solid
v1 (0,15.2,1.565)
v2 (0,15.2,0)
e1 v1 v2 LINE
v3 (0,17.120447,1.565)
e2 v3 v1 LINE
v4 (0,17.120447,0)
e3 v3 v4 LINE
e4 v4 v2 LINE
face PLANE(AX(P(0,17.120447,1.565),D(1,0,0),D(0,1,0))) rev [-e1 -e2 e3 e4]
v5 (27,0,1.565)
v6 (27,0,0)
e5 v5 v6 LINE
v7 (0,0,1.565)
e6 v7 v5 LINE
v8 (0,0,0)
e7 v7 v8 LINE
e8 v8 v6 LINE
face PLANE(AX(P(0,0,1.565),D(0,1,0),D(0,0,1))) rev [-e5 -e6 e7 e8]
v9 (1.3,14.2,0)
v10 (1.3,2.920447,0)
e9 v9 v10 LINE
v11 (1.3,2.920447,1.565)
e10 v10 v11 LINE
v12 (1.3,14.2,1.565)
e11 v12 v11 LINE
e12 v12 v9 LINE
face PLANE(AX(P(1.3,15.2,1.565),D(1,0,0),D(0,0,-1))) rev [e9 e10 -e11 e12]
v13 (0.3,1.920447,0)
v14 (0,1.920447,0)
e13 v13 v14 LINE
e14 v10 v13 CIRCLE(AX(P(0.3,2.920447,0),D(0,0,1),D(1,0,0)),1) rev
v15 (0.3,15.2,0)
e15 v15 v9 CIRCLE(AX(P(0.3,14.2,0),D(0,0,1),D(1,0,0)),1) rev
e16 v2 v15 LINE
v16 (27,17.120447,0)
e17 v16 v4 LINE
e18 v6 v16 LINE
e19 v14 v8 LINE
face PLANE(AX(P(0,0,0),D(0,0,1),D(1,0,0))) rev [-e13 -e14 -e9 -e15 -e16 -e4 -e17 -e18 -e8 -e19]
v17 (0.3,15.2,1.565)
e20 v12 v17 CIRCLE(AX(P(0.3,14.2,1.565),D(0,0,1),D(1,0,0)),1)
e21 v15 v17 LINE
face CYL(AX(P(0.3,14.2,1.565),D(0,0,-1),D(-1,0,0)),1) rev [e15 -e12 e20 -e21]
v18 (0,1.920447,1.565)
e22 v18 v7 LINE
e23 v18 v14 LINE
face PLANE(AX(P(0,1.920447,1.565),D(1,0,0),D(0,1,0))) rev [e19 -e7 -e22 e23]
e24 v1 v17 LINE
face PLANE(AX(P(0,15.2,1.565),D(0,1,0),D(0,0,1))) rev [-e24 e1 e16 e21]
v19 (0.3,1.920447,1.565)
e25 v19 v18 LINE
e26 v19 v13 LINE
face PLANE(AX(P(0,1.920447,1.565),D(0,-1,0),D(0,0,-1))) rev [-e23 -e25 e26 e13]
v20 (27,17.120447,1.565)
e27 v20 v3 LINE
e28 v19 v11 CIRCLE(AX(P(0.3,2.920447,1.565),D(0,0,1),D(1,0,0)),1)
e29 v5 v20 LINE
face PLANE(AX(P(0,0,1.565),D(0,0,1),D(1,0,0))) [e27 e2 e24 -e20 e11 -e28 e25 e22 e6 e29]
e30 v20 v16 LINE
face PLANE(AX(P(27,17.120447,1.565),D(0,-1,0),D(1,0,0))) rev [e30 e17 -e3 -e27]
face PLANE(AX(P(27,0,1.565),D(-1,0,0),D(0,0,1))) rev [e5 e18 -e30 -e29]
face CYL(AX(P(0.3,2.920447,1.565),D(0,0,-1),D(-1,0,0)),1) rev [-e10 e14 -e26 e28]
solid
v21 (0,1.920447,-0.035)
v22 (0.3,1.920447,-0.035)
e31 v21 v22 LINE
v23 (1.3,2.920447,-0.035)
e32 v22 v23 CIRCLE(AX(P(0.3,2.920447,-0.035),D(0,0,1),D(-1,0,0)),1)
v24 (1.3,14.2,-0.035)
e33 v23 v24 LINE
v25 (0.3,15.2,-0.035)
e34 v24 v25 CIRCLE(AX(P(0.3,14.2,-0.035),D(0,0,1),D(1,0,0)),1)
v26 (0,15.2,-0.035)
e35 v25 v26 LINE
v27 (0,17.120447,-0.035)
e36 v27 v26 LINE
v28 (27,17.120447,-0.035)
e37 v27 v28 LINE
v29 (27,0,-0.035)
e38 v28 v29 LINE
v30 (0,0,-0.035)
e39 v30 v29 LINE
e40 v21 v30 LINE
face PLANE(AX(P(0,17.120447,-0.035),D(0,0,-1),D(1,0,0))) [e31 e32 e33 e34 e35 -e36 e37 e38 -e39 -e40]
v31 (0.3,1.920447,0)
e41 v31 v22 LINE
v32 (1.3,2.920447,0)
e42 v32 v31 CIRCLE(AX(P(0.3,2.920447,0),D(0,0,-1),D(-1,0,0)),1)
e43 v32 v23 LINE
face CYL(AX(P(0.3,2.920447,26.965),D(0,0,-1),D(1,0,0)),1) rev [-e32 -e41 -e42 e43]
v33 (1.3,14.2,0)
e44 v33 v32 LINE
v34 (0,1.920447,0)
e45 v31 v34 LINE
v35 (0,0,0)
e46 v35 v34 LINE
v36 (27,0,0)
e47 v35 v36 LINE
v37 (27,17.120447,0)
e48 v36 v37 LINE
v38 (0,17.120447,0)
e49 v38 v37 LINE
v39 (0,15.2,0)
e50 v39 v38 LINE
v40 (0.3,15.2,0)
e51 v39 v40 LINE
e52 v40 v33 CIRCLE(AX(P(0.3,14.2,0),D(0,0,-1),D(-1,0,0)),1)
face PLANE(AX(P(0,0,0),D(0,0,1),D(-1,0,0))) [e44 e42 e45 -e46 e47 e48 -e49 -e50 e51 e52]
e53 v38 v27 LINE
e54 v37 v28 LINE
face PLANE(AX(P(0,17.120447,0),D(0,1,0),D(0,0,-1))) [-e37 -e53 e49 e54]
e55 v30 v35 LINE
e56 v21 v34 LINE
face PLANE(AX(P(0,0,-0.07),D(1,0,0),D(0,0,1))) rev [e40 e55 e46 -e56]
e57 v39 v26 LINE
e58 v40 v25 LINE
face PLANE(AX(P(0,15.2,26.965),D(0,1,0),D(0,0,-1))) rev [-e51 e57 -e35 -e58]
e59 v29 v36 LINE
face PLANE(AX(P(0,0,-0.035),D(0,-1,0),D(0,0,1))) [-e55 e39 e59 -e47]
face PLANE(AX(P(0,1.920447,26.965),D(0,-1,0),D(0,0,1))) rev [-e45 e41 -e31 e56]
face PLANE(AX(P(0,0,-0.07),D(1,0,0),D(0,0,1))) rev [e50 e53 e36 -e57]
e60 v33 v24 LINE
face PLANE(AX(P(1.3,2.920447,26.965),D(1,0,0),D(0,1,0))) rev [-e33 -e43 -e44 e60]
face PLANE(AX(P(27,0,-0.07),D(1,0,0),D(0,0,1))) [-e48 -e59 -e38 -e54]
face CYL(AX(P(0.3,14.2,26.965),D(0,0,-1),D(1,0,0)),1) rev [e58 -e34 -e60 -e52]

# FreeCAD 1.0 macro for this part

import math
import FreeCAD as App
import Part
import Sketcher
from FreeCAD import Vector
Q = App.Units.Quantity


def edges_at(feature, points):
    """Names of the edges that pass closest to the given points."""
    edges = feature.Shape.Edges
    near = lambda p: min(range(len(edges)), key=lambda i: edges[i].distToShape(Part.Vertex(*p))[0])
    return sorted({f"Edge{near(p) + 1}" for p in points})


def add_polygon(sketch, points):
    """Adds a closed chain of lines whose ends are joined by coincident constraints."""
    first, n = sketch.GeometryCount, len(points)
    for a, b in zip(points, points[1:] + points[:1]):
        sketch.addGeometry(Part.LineSegment(App.Vector(*a, 0), App.Vector(*b, 0)), False)
    for i in range(n):
        sketch.addConstraint(Sketcher.Constraint("Coincident", first + i, 2, first + (i + 1) % n, 1))

doc = App.newDocument("Part")
body = doc.addObject("PartDesign::Body", "Body")

# Sketch on XY plane
sketch1 = doc.addObject("Sketcher::SketchObject", "Sketch")
body.addObject(sketch1)
sketch1.AttachmentSupport = (doc.XY_Plane, [""])
sketch1.MapMode = "FlatFace"
add_polygon(sketch1, [(0, 0), (27, 0), (27, 17.1), (0, 17.1), (0, 15.2), (1.3, 15.2), (1.3, 1.9), (0, 1.9)])  # lines 0-7
sketch1.addConstraint([
    Sketcher.Constraint("Horizontal", 0),
    Sketcher.Constraint("Vertical", 1),
    Sketcher.Constraint("Horizontal", 2),
    Sketcher.Constraint("Vertical", 3),
    Sketcher.Constraint("Horizontal", 4),
    Sketcher.Constraint("Vertical", 5),
    Sketcher.Constraint("Horizontal", 6),
    Sketcher.Constraint("Vertical", 7),
    Sketcher.Constraint("Coincident", 7, 2, -1, 1),
    Sketcher.Constraint("PointOnObject", 2, 2, -2),
    Sketcher.Constraint("Equal", 3, 7),
    Sketcher.Constraint("DistanceX", 0, 1, 0, 2, Q("27 mm")),
    Sketcher.Constraint("DistanceX", 4, 1, 4, 2, Q("1.3 mm")),
    Sketcher.Constraint("DistanceY", -1, 1, 3, 2, Q("15.2 mm")),
    Sketcher.Constraint("DistanceY", 1, 1, 1, 2, Q("17.120447 mm")),
])
pad1 = doc.addObject("PartDesign::Pad", "Pad")
body.addObject(pad1)
pad1.Profile = sketch1
pad1.Length = 1.565
doc.recompute()

fillet = doc.addObject("PartDesign::Fillet", "Fillet")
body.addObject(fillet)
fillet.Base = (pad1, edges_at(pad1, [(1.3, 15.2, 0.782)]))
fillet.Radius = 1
doc.recompute()

fillet2 = doc.addObject("PartDesign::Fillet", "Fillet001")
body.addObject(fillet2)
fillet2.Base = (fillet, edges_at(fillet, [(1.3, 1.92, 0.782)]))
fillet2.Radius = 1
body2 = doc.addObject("PartDesign::Body", "Body001")

# Sketch on YZ plane
sketch2 = doc.addObject("Sketcher::SketchObject", "Sketch001")
body2.addObject(sketch2)
sketch2.AttachmentSupport = (doc.getObject("YZ_Plane001"), [""])
sketch2.MapMode = "FlatFace"
sketch2.AttachmentOffset = App.Placement(Vector(0, 0, 27), App.Rotation())
add_polygon(sketch2, [(17.12, -0.035), (0, -0.035), (0, -0.07), (17.12, -0.07)])  # lines 0-3
sketch2.addConstraint([
    Sketcher.Constraint("Horizontal", 0),
    Sketcher.Constraint("Vertical", 1),
    Sketcher.Constraint("Horizontal", 2),
    Sketcher.Constraint("Vertical", 3),
    Sketcher.Constraint("PointOnObject", 0, 2, -2),
    Sketcher.Constraint("DistanceY", 1, 2, 1, 1, Q("0.035 mm")),
    Sketcher.Constraint("DistanceY", 1, 2, -1, 1, Q("0.07 mm")),
    Sketcher.Constraint("DistanceX", 0, 2, 0, 1, Q("17.120447 mm")),
])
pad2 = doc.addObject("PartDesign::Pad", "Pad001")
body2.addObject(pad2)
pad2.Profile = sketch2
pad2.Length = 27
pad2.Reversed = True

# Sketch on XY plane
sketch3 = doc.addObject("Sketcher::SketchObject", "Sketch002")
body2.addObject(sketch3)
sketch3.AttachmentSupport = (doc.getObject("XY_Plane001"), [""])
sketch3.MapMode = "FlatFace"
sketch3.AttachmentOffset = App.Placement(Vector(0, 0, -0.035), App.Rotation())
sketch3.addGeometry([
    Part.LineSegment(Vector(1.3, 2.92, 0), Vector(1.3, 14.2, 0)),  # 0
    Part.ArcOfCircle(Part.Circle(Vector(0.3, 14.2, 0), Vector(0, 0, 1), 1), math.radians(0), math.radians(90)),  # 1
    Part.LineSegment(Vector(0.3, 15.2, 0), Vector(0, 15.2, 0)),  # 2
    Part.LineSegment(Vector(0, 15.2, 0), Vector(0, 1.92, 0)),  # 3
    Part.LineSegment(Vector(0, 1.92, 0), Vector(0.3, 1.92, 0)),  # 4
    Part.ArcOfCircle(Part.Circle(Vector(0.3, 2.92, 0), Vector(0, 0, 1), 1), math.radians(-90), math.radians(0)),  # 5
], False)
sketch3.addConstraint([
    Sketcher.Constraint("Tangent", 0, 2, 1, 1),
    Sketcher.Constraint("Tangent", 1, 2, 2, 1),
    Sketcher.Constraint("Coincident", 2, 2, 3, 1),
    Sketcher.Constraint("Coincident", 3, 2, 4, 1),
    Sketcher.Constraint("Tangent", 4, 2, 5, 1),
    Sketcher.Constraint("Tangent", 5, 2, 0, 1),
    Sketcher.Constraint("Vertical", 0),
    Sketcher.Constraint("Horizontal", 2),
    Sketcher.Constraint("Vertical", 3),
    Sketcher.Constraint("Horizontal", 4),
    Sketcher.Constraint("Equal", 1, 5),
    Sketcher.Constraint("PointOnObject", 2, 2, -2),
    Sketcher.Constraint("Radius", 1, Q("1 mm")),
    Sketcher.Constraint("DistanceX", 2, 2, 2, 1, Q("0.3 mm")),
    Sketcher.Constraint("DistanceY", -1, 1, 1, 3, Q("14.2 mm")),
    Sketcher.Constraint("DistanceY", 0, 1, 0, 2, Q("11.279553 mm")),
])
pocket1 = doc.addObject("PartDesign::Pocket", "Pocket")
body2.addObject(pocket1)
pocket1.Profile = sketch3
pocket1.Length = 27
body3 = doc.addObject("PartDesign::Body", "Body002")
doc.recompute()

mirroring = doc.addObject("Part::Mirroring", "Mirroring")
mirroring.Source = body2
mirroring.Base = Vector(0, 17.120447, -0.035)
mirroring.Normal = Vector(0, 0, 1)
body3.BaseFeature = mirroring
doc.recompute()
body2.Visibility = False
mirroring.Visibility = False

doc.recompute()
